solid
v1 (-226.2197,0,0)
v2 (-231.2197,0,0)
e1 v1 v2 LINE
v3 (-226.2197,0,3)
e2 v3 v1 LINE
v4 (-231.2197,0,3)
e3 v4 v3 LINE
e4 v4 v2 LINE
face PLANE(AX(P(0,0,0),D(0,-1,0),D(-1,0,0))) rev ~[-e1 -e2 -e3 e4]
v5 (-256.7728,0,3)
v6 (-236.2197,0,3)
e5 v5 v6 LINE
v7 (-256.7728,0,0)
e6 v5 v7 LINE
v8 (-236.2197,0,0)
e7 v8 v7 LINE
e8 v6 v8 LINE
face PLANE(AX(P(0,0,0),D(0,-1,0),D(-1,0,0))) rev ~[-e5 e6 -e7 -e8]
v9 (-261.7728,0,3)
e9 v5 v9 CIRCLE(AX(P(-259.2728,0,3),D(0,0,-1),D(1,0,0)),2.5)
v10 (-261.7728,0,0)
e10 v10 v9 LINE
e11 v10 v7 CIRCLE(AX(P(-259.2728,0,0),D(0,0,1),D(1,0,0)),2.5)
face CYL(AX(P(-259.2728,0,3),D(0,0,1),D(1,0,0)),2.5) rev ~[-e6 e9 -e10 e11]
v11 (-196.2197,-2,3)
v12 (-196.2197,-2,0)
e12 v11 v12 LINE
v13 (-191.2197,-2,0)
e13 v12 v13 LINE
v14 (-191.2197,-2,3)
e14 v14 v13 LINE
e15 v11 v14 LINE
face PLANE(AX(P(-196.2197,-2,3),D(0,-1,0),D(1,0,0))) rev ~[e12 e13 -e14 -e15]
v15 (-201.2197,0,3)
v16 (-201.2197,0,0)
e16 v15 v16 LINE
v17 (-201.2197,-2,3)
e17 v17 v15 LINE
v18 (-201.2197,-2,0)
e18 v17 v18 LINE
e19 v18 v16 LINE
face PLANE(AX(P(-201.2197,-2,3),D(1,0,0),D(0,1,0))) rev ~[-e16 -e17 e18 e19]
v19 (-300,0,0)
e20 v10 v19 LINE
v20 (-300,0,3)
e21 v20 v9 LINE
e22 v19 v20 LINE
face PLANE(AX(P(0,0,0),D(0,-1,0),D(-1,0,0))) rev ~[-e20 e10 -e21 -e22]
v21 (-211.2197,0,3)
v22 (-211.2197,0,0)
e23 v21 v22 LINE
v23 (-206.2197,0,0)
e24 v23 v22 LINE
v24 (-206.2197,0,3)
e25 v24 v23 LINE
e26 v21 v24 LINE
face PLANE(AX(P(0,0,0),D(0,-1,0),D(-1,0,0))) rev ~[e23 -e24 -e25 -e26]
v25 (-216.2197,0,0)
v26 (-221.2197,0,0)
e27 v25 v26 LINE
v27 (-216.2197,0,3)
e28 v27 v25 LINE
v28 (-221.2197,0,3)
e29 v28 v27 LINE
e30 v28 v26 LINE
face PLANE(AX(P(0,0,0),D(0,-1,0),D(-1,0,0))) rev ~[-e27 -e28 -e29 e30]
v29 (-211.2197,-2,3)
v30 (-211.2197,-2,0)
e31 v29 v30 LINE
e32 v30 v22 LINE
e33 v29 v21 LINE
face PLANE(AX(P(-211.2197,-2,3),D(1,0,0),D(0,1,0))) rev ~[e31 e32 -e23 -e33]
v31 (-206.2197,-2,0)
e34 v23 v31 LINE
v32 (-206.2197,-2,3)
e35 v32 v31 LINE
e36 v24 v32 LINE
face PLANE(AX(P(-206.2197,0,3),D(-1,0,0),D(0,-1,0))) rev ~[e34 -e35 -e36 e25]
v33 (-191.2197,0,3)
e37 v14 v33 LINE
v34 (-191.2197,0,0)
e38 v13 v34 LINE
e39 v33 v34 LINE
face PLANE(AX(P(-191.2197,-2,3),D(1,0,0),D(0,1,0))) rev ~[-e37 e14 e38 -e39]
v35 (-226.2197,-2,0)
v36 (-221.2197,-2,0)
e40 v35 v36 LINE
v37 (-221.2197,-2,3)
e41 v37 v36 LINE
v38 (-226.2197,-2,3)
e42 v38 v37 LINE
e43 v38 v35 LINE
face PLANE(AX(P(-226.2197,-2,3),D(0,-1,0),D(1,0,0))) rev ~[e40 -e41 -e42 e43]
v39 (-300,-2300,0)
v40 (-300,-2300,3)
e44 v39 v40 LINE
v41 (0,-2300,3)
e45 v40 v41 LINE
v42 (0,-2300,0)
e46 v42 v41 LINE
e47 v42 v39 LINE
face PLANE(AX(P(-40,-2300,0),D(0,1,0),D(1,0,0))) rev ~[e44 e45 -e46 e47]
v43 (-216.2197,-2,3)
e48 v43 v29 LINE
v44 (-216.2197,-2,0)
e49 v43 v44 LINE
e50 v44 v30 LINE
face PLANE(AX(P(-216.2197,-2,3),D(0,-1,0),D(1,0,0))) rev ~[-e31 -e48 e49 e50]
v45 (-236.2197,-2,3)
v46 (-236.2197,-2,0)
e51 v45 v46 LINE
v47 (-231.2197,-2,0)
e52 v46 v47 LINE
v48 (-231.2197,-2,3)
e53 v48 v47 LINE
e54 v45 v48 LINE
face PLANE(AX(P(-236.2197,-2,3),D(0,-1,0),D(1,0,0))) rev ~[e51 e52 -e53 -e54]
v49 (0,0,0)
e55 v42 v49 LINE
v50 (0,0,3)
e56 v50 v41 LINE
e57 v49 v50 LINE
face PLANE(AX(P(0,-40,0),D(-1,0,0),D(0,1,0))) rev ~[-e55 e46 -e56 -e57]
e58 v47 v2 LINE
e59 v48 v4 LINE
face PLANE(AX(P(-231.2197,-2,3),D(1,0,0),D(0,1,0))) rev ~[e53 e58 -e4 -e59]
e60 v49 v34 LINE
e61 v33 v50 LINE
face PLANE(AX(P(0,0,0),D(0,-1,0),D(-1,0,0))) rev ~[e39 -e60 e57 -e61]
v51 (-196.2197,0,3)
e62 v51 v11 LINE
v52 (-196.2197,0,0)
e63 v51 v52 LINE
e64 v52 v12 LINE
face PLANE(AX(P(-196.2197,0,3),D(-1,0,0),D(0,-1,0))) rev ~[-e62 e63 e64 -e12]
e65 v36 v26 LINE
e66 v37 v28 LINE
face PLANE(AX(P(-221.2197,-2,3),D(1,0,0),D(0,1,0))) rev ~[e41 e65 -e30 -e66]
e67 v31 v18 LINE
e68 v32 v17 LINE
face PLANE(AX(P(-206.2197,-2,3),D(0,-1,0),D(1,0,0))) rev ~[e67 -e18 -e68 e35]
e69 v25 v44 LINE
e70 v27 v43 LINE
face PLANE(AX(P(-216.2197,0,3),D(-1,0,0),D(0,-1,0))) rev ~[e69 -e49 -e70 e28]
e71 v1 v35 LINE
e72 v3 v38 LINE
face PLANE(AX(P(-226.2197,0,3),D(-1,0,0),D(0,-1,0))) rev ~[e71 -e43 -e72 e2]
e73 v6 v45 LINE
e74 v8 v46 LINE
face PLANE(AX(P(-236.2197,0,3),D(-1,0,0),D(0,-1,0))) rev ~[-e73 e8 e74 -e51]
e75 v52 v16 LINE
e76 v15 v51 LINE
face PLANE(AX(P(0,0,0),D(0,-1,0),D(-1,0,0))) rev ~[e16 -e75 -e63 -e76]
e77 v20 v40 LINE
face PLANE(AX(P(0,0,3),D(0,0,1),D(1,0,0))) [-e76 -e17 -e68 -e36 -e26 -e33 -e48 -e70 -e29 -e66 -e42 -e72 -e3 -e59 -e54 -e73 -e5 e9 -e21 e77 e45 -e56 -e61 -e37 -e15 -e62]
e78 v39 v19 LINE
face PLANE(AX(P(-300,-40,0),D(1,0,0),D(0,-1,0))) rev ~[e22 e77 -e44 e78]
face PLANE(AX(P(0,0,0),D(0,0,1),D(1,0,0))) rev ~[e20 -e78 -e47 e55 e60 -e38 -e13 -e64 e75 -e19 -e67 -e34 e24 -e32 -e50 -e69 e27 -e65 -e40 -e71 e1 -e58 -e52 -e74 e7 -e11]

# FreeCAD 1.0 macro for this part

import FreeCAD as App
import Part
import Sketcher
Q = App.Units.Quantity

doc = App.newDocument("Part")
body = doc.addObject("PartDesign::Body", "Body")

# Sketch on XY plane
sketch1 = body.newObject("Sketcher::SketchObject", "Sketch")
sketch1.AttachmentSupport = (doc.getObject("XY_Plane"), [""])
sketch1.MapMode = "FlatFace"
sketch1.addGeometry(Part.LineSegment(App.Vector(0, 0, 0), App.Vector(-300, 0, 0)), False)
sketch1.addGeometry(Part.LineSegment(App.Vector(-300, 0, 0), App.Vector(-300, -2300, 0)), False)
sketch1.addGeometry(Part.LineSegment(App.Vector(-300, -2300, 0), App.Vector(0, -2300, 0)), False)
sketch1.addGeometry(Part.LineSegment(App.Vector(0, -2300, 0), App.Vector(0, 0, 0)), False)
sketch1.addConstraint(Sketcher.Constraint("Coincident", 0, 2, 1, 1))
sketch1.addConstraint(Sketcher.Constraint("Coincident", 1, 2, 2, 1))
sketch1.addConstraint(Sketcher.Constraint("Coincident", 2, 2, 3, 1))
sketch1.addConstraint(Sketcher.Constraint("Coincident", 3, 2, 0, 1))
sketch1.addConstraint(Sketcher.Constraint("Horizontal", 0))
sketch1.addConstraint(Sketcher.Constraint("Vertical", 1))
sketch1.addConstraint(Sketcher.Constraint("Horizontal", 2))
sketch1.addConstraint(Sketcher.Constraint("Vertical", 3))
sketch1.addConstraint(Sketcher.Constraint("Coincident", 3, 2, -1, 1))
sketch1.addConstraint(Sketcher.Constraint("DistanceX", 0, 2, 0, 1, Q("300 mm")))
sketch1.addConstraint(Sketcher.Constraint("DistanceY", 1, 2, 1, 1, Q("2300 mm")))
pad1 = body.newObject("PartDesign::Pad", "Pad")
pad1.Profile = sketch1
pad1.Length = 3

# Sketch on XY plane
sketch2 = body.newObject("Sketcher::SketchObject", "Sketch001")
sketch2.AttachmentSupport = (doc.getObject("XY_Plane"), [""])
sketch2.MapMode = "FlatFace"
sketch2.AttachmentOffset = App.Placement(App.Vector(0, 0, 3), App.Rotation())
sketch2.addGeometry(Part.LineSegment(App.Vector(-231.2, -2, 0), App.Vector(-231.2, 0, 0)), False)
sketch2.addGeometry(Part.LineSegment(App.Vector(-231.2, 0, 0), App.Vector(-236.2, 0, 0)), False)
sketch2.addGeometry(Part.LineSegment(App.Vector(-236.2, 0, 0), App.Vector(-236.2, -2, 0)), False)
sketch2.addGeometry(Part.LineSegment(App.Vector(-236.2, -2, 0), App.Vector(-231.2, -2, 0)), False)
sketch2.addGeometry(Part.LineSegment(App.Vector(-221.2, 0, 0), App.Vector(-226.2, 0, 0)), False)
sketch2.addGeometry(Part.LineSegment(App.Vector(-226.2, 0, 0), App.Vector(-226.2, -2, 0)), False)
sketch2.addGeometry(Part.LineSegment(App.Vector(-226.2, -2, 0), App.Vector(-221.2, -2, 0)), False)
sketch2.addGeometry(Part.LineSegment(App.Vector(-221.2, -2, 0), App.Vector(-221.2, 0, 0)), False)
sketch2.addGeometry(Part.Circle(App.Vector(-259.3, 0, 0), App.Vector(0, 0, 1), 2.5), False)
sketch2.addGeometry(Part.LineSegment(App.Vector(-211.2, 0, 0), App.Vector(-216.2, 0, 0)), False)
sketch2.addGeometry(Part.LineSegment(App.Vector(-216.2, 0, 0), App.Vector(-216.2, -2, 0)), False)
sketch2.addGeometry(Part.LineSegment(App.Vector(-216.2, -2, 0), App.Vector(-211.2, -2, 0)), False)
sketch2.addGeometry(Part.LineSegment(App.Vector(-211.2, -2, 0), App.Vector(-211.2, 0, 0)), False)
sketch2.addGeometry(Part.LineSegment(App.Vector(-201.2, 0, 0), App.Vector(-206.2, 0, 0)), False)
sketch2.addGeometry(Part.LineSegment(App.Vector(-206.2, 0, 0), App.Vector(-206.2, -2, 0)), False)
sketch2.addGeometry(Part.LineSegment(App.Vector(-206.2, -2, 0), App.Vector(-201.2, -2, 0)), False)
sketch2.addGeometry(Part.LineSegment(App.Vector(-201.2, -2, 0), App.Vector(-201.2, 0, 0)), False)
sketch2.addGeometry(Part.LineSegment(App.Vector(-191.2, 0, 0), App.Vector(-196.2, 0, 0)), False)
sketch2.addGeometry(Part.LineSegment(App.Vector(-196.2, 0, 0), App.Vector(-196.2, -2, 0)), False)
sketch2.addGeometry(Part.LineSegment(App.Vector(-196.2, -2, 0), App.Vector(-191.2, -2, 0)), False)
sketch2.addGeometry(Part.LineSegment(App.Vector(-191.2, -2, 0), App.Vector(-191.2, 0, 0)), False)
sketch2.addConstraint(Sketcher.Constraint("Coincident", 0, 2, 1, 1))
sketch2.addConstraint(Sketcher.Constraint("Coincident", 1, 2, 2, 1))
sketch2.addConstraint(Sketcher.Constraint("Coincident", 2, 2, 3, 1))
sketch2.addConstraint(Sketcher.Constraint("Coincident", 3, 2, 0, 1))
sketch2.addConstraint(Sketcher.Constraint("Coincident", 4, 2, 5, 1))
sketch2.addConstraint(Sketcher.Constraint("Coincident", 5, 2, 6, 1))
sketch2.addConstraint(Sketcher.Constraint("Coincident", 6, 2, 7, 1))
sketch2.addConstraint(Sketcher.Constraint("Coincident", 7, 2, 4, 1))
sketch2.addConstraint(Sketcher.Constraint("Coincident", 9, 2, 10, 1))
sketch2.addConstraint(Sketcher.Constraint("Coincident", 10, 2, 11, 1))
sketch2.addConstraint(Sketcher.Constraint("Coincident", 11, 2, 12, 1))
sketch2.addConstraint(Sketcher.Constraint("Coincident", 12, 2, 9, 1))
sketch2.addConstraint(Sketcher.Constraint("Coincident", 13, 2, 14, 1))
sketch2.addConstraint(Sketcher.Constraint("Coincident", 14, 2, 15, 1))
sketch2.addConstraint(Sketcher.Constraint("Coincident", 15, 2, 16, 1))
sketch2.addConstraint(Sketcher.Constraint("Coincident", 16, 2, 13, 1))
sketch2.addConstraint(Sketcher.Constraint("Coincident", 17, 2, 18, 1))
sketch2.addConstraint(Sketcher.Constraint("Coincident", 18, 2, 19, 1))
sketch2.addConstraint(Sketcher.Constraint("Coincident", 19, 2, 20, 1))
sketch2.addConstraint(Sketcher.Constraint("Coincident", 20, 2, 17, 1))
sketch2.addConstraint(Sketcher.Constraint("Vertical", 0))
sketch2.addConstraint(Sketcher.Constraint("Horizontal", 1))
sketch2.addConstraint(Sketcher.Constraint("Vertical", 2))
sketch2.addConstraint(Sketcher.Constraint("Horizontal", 3))
sketch2.addConstraint(Sketcher.Constraint("Horizontal", 4))
sketch2.addConstraint(Sketcher.Constraint("Vertical", 5))
sketch2.addConstraint(Sketcher.Constraint("Horizontal", 6))
sketch2.addConstraint(Sketcher.Constraint("Vertical", 7))
sketch2.addConstraint(Sketcher.Constraint("Horizontal", 9))
sketch2.addConstraint(Sketcher.Constraint("Vertical", 10))
sketch2.addConstraint(Sketcher.Constraint("Horizontal", 11))
sketch2.addConstraint(Sketcher.Constraint("Vertical", 12))
sketch2.addConstraint(Sketcher.Constraint("Horizontal", 13))
sketch2.addConstraint(Sketcher.Constraint("Vertical", 14))
sketch2.addConstraint(Sketcher.Constraint("Horizontal", 15))
sketch2.addConstraint(Sketcher.Constraint("Vertical", 16))
sketch2.addConstraint(Sketcher.Constraint("Horizontal", 17))
sketch2.addConstraint(Sketcher.Constraint("Vertical", 18))
sketch2.addConstraint(Sketcher.Constraint("Horizontal", 19))
sketch2.addConstraint(Sketcher.Constraint("Vertical", 20))
sketch2.addConstraint(Sketcher.Constraint("PointOnObject", 8, 3, -1))
sketch2.addConstraint(Sketcher.Constraint("PointOnObject", 0, 2, -1))
sketch2.addConstraint(Sketcher.Constraint("PointOnObject", 4, 2, -1))
sketch2.addConstraint(Sketcher.Constraint("PointOnObject", 9, 2, -1))
sketch2.addConstraint(Sketcher.Constraint("PointOnObject", 13, 2, -1))
sketch2.addConstraint(Sketcher.Constraint("PointOnObject", 17, 2, -1))
sketch2.addConstraint(Sketcher.Constraint("Horizontal", 3, 2, 5, 2))
sketch2.addConstraint(Sketcher.Constraint("Horizontal", 6, 2, 10, 2))
sketch2.addConstraint(Sketcher.Constraint("Horizontal", 11, 2, 14, 2))
sketch2.addConstraint(Sketcher.Constraint("Horizontal", 15, 2, 18, 2))
sketch2.addConstraint(Sketcher.Constraint("Equal", 3, 4))
sketch2.addConstraint(Sketcher.Constraint("Equal", 6, 9))
sketch2.addConstraint(Sketcher.Constraint("Equal", 11, 13))
sketch2.addConstraint(Sketcher.Constraint("Equal", 15, 17))
sketch2.addConstraint(Sketcher.Constraint("Diameter", 8, Q("5 mm")))
sketch2.addConstraint(Sketcher.Constraint("DistanceX", 1, 2, 1, 1, Q("5 mm")))
sketch2.addConstraint(Sketcher.Constraint("DistanceY", 0, 1, 0, 2, Q("2 mm")))
sketch2.addConstraint(Sketcher.Constraint("DistanceX", 0, 2, 4, 2, Q("5 mm")))
sketch2.addConstraint(Sketcher.Constraint("DistanceX", 7, 2, 9, 2, Q("5 mm")))
sketch2.addConstraint(Sketcher.Constraint("DistanceX", 12, 2, 13, 2, Q("5 mm")))
sketch2.addConstraint(Sketcher.Constraint("DistanceX", 16, 2, 17, 2, Q("5 mm")))
sketch2.addConstraint(Sketcher.Constraint("DistanceX", 8, 3, 0, 2, Q("28.053 mm")))
sketch2.addConstraint(Sketcher.Constraint("DistanceX", 8, 3, -1, 1, Q("259.2728 mm")))
pocket1 = body.newObject("PartDesign::Pocket", "Pocket")
pocket1.Profile = sketch2
pocket1.Length = 3

doc.recompute()
